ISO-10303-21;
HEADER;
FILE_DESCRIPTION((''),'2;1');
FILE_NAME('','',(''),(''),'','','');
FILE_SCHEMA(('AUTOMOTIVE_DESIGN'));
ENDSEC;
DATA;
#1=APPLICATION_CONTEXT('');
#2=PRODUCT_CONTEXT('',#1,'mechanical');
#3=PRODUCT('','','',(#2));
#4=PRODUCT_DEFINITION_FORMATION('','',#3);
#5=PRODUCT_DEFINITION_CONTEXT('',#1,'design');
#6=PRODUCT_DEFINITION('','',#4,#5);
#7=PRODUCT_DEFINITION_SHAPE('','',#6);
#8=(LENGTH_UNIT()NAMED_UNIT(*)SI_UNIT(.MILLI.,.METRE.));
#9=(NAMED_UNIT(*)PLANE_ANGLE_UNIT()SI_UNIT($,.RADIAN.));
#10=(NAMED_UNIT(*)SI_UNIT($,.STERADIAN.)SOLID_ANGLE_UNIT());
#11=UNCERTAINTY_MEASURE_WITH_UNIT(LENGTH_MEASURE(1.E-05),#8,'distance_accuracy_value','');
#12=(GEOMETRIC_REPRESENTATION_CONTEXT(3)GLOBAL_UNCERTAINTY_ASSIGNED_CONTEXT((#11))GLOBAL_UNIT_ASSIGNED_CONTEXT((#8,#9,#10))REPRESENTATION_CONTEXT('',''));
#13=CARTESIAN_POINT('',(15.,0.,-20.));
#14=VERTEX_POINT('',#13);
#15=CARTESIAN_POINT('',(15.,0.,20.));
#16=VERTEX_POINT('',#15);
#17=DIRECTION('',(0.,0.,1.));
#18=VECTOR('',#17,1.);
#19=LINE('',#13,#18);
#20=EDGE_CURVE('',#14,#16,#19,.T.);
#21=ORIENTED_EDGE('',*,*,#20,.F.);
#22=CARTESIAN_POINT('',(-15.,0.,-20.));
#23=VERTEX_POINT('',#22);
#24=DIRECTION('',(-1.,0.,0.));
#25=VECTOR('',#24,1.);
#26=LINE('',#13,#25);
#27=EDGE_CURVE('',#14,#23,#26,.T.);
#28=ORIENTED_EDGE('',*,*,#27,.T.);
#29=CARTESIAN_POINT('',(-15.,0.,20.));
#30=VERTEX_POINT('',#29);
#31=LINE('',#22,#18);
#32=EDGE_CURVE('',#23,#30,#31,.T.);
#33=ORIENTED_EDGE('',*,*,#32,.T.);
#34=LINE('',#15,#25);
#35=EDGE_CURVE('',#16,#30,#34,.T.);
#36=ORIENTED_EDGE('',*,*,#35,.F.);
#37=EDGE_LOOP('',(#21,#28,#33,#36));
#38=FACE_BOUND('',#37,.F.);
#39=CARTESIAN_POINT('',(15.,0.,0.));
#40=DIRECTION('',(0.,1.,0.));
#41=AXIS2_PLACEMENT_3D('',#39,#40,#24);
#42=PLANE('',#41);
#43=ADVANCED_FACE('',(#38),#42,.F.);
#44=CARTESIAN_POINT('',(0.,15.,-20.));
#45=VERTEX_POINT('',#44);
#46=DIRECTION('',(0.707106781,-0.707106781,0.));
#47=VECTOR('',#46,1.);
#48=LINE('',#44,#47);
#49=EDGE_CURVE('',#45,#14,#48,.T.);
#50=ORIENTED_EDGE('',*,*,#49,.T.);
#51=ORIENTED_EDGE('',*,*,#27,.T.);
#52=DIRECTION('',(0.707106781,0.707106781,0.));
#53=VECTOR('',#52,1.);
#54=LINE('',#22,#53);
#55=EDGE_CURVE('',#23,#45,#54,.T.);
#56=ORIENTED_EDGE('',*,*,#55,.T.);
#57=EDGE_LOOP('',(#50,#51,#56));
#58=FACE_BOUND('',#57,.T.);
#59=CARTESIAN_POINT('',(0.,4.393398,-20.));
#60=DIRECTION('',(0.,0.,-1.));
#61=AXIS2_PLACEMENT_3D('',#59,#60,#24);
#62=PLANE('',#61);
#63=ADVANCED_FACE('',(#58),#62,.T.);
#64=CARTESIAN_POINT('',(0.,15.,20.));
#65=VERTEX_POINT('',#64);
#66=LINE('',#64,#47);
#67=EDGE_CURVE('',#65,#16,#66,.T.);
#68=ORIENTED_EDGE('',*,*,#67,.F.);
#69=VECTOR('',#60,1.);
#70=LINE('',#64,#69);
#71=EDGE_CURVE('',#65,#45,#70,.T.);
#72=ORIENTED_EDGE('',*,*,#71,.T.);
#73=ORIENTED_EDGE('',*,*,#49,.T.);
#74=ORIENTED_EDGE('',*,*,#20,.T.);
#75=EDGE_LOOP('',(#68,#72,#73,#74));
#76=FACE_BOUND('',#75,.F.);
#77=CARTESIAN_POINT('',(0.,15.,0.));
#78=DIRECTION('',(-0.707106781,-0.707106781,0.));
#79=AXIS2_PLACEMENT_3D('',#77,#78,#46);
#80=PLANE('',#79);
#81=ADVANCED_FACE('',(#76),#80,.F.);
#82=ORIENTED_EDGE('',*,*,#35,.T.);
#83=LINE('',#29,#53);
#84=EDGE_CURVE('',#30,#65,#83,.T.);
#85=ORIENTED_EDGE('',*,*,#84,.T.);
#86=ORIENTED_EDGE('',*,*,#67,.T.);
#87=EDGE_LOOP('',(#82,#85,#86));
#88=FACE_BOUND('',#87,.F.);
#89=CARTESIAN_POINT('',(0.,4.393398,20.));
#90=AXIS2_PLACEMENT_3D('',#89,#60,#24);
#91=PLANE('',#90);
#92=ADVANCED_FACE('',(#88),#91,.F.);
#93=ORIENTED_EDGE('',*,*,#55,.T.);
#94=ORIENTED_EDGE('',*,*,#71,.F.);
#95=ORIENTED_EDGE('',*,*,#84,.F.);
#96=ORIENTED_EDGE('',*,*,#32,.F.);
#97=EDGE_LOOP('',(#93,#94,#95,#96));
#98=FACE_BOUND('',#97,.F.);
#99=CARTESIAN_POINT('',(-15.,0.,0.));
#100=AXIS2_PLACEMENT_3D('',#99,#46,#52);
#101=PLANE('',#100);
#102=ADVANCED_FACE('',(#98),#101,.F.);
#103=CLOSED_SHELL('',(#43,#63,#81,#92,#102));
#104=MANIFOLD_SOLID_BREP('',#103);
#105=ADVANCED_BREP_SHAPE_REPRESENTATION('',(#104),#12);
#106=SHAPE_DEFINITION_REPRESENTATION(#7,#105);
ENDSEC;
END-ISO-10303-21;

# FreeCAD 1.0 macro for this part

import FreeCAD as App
import Part
import Sketcher

V = App.Vector

doc = App.newDocument("Part")
body = doc.addObject("PartDesign::Body", "Body")

# Sketch on XY plane
sketch1 = body.newObject("Sketcher::SketchObject", "Sketch")
sketch1.AttachmentSupport = (doc.getObject("XY_Plane"), [""])
sketch1.MapMode = "FlatFace"
sketch1.addGeometry([
    Part.LineSegment(V(0, 15, 0), V(-15, 0, 0)),
    Part.LineSegment(V(-15, 0, 0), V(15, 0, 0)),
    Part.LineSegment(V(15, 0, 0), V(0, 15, 0)),
], False)
sketch1.addConstraint([
    Sketcher.Constraint("Coincident", 0, 2, 1, 1),
    Sketcher.Constraint("Coincident", 1, 2, 2, 1),
    Sketcher.Constraint("Coincident", 2, 2, 0, 1),
    Sketcher.Constraint("Horizontal", 1),
    Sketcher.Constraint("Symmetric", 0, 2, 1, 2, -1, 1),
    Sketcher.Constraint("PointOnObject", 2, 2, -2),
    Sketcher.Constraint("Perpendicular", 0, 2),
    Sketcher.Constraint("DistanceX", 1, 1, 1, 2, 30.0),
])
pad1 = body.newObject("PartDesign::Pad", "Pad")
pad1.Profile = sketch1
pad1.Length = 40
pad1.Midplane = True

doc.recompute()
